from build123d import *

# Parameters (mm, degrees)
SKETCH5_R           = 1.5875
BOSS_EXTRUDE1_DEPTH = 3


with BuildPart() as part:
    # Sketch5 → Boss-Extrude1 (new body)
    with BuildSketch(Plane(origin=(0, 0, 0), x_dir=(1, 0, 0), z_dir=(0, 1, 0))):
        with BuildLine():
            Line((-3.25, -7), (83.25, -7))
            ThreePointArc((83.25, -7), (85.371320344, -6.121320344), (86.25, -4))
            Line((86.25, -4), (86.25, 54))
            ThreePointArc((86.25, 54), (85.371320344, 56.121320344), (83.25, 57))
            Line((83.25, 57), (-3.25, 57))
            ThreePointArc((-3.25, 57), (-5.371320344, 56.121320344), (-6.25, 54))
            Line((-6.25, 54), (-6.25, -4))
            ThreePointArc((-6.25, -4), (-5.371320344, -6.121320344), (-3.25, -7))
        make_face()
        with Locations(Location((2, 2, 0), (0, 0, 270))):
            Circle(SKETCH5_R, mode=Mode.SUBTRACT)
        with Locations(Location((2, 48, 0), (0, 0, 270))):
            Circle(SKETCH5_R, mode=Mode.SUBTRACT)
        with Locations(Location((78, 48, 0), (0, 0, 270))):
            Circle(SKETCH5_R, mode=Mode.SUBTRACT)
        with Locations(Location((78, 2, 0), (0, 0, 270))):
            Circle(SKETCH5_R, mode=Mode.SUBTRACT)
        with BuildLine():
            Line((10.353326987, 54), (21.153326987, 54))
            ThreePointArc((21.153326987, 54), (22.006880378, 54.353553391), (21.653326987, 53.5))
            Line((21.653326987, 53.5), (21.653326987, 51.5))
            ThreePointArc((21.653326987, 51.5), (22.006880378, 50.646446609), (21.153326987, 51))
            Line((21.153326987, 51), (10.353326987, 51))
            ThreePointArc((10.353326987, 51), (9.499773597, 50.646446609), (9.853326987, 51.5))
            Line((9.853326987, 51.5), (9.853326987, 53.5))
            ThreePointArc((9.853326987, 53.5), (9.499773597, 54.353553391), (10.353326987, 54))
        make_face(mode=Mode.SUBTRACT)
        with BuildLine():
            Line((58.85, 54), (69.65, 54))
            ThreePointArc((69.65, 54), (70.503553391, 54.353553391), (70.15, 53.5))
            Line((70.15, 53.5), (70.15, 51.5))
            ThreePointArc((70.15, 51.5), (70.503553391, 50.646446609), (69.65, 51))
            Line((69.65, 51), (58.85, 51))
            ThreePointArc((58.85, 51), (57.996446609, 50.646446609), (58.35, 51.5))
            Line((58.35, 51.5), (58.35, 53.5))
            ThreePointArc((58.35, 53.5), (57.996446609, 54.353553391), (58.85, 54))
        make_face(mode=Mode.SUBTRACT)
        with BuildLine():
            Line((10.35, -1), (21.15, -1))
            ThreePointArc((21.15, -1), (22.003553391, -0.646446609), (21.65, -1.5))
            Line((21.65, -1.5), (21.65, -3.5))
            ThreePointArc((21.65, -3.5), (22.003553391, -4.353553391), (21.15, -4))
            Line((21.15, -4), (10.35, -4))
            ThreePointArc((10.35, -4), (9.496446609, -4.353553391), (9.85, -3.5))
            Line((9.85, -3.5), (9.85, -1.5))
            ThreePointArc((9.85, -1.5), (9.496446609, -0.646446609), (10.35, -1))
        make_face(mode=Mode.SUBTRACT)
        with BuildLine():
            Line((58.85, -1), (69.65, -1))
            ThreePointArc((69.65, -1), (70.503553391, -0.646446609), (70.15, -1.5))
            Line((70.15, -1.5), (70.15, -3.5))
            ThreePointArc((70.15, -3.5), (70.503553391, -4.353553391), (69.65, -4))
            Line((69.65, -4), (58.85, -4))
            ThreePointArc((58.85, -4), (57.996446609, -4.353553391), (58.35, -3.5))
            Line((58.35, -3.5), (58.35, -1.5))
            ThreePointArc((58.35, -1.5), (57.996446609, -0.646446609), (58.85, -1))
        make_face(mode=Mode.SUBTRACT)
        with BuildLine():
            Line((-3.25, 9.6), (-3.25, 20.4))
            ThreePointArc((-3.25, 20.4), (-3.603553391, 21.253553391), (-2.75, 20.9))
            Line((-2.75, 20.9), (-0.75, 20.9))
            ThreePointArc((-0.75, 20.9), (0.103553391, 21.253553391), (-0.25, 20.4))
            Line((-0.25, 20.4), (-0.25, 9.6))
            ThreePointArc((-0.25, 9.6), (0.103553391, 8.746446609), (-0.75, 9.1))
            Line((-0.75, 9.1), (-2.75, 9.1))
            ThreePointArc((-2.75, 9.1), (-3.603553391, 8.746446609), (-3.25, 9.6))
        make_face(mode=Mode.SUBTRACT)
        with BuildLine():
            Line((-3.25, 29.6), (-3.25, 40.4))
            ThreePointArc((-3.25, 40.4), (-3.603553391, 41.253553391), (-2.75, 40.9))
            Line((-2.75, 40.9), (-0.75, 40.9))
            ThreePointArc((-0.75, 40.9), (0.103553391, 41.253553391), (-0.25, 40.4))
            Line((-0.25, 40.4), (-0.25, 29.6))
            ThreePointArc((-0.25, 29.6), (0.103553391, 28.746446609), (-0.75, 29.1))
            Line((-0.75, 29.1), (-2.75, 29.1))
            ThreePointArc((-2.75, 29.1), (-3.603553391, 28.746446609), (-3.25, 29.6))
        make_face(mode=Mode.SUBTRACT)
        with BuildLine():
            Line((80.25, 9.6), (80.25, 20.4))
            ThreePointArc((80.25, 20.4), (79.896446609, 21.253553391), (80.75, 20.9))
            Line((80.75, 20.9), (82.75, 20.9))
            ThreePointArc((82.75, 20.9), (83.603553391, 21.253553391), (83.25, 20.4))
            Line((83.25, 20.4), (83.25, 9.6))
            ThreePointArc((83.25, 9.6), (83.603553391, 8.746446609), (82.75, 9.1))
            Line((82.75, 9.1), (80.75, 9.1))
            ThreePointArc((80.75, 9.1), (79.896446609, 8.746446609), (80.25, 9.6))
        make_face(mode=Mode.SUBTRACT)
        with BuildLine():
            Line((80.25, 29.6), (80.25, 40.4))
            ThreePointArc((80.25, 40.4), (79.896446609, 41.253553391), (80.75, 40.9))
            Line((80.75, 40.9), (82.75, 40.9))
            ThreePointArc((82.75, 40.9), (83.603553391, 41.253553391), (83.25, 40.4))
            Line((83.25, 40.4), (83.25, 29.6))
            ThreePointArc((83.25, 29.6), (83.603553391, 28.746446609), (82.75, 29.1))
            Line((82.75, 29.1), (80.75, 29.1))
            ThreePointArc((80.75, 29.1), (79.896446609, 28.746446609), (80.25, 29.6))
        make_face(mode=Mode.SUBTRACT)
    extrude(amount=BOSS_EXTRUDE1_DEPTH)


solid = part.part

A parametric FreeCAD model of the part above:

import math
import FreeCAD as App
import Part
import Sketcher
from FreeCAD import Vector

doc = App.newDocument("Part")
body = doc.addObject("PartDesign::Body", "Body")

# Sketch on XZ plane
sketch1 = doc.addObject("Sketcher::SketchObject", "Sketch")
body.addObject(sketch1)
sketch1.AttachmentSupport = (doc.XZ_Plane, [""])
sketch1.MapMode = "FlatFace"
sketch1.addGeometry(Part.LineSegment(Vector(-3.2, 7, 0), Vector(83.2, 7, 0)), False)
sketch1.addGeometry(Part.ArcOfCircle(Part.Circle(Vector(83.3, 4, 0), Vector(0, 0, 1), 3), math.radians(0), math.radians(90)), False)
sketch1.addGeometry(Part.LineSegment(Vector(86.2, 4, 0), Vector(86.2, -54, 0)), False)
sketch1.addGeometry(Part.ArcOfCircle(Part.Circle(Vector(83.3, -54, 0), Vector(0, 0, 1), 3), math.radians(-90), math.radians(0)), False)
sketch1.addGeometry(Part.LineSegment(Vector(83.2, -57, 0), Vector(-3.2, -57, 0)), False)
sketch1.addGeometry(Part.ArcOfCircle(Part.Circle(Vector(-3.3, -54, 0), Vector(0, 0, 1), 3), math.radians(180), math.radians(270)), False)
sketch1.addGeometry(Part.LineSegment(Vector(-6.2, -54, 0), Vector(-6.2, 4, 0)), False)
sketch1.addGeometry(Part.ArcOfCircle(Part.Circle(Vector(-3.3, 4, 0), Vector(0, 0, 1), 3), math.radians(90), math.radians(180)), False)
sketch1.addGeometry(Part.Circle(Vector(2, -2, 0), Vector(0, 0, 1), 1.6), False)
sketch1.addGeometry(Part.ArcOfCircle(Part.Circle(Vector(9.8, 1, 0), Vector(0, 0, 1), 0.5), math.radians(90), math.radians(360)), False)
sketch1.addGeometry(Part.LineSegment(Vector(10.3, 1, 0), Vector(21.1, 1, 0)), False)
sketch1.addGeometry(Part.ArcOfCircle(Part.Circle(Vector(21.6, 1, 0), Vector(0, 0, 1), 0.5), math.radians(180), math.radians(450)), False)
sketch1.addGeometry(Part.LineSegment(Vector(21.6, 1.5, 0), Vector(21.6, 3.5, 0)), False)
sketch1.addGeometry(Part.ArcOfCircle(Part.Circle(Vector(21.6, 4, 0), Vector(0, 0, 1), 0.5), math.radians(-90), math.radians(180)), False)
sketch1.addGeometry(Part.LineSegment(Vector(21.1, 4, 0), Vector(10.3, 4, 0)), False)
sketch1.addGeometry(Part.ArcOfCircle(Part.Circle(Vector(9.8, 4, 0), Vector(0, 0, 1), 0.5), math.radians(0), math.radians(270)), False)
sketch1.addGeometry(Part.LineSegment(Vector(9.8, 3.5, 0), Vector(9.8, 1.5, 0)), False)
sketch1.addGeometry(Part.ArcOfCircle(Part.Circle(Vector(-3.2, -9.1, 0), Vector(0, 0, 1), 0.5), math.radians(0), math.radians(270)), False)
sketch1.addGeometry(Part.LineSegment(Vector(-3.2, -9.6, 0), Vector(-3.2, -20.4, 0)), False)
sketch1.addGeometry(Part.ArcOfCircle(Part.Circle(Vector(-3.2, -20.9, 0), Vector(0, 0, 1), 0.5), math.radians(90), math.radians(360)), False)
sketch1.addGeometry(Part.LineSegment(Vector(-2.8, -20.9, 0), Vector(-0.8, -20.9, 0)), False)
sketch1.addGeometry(Part.ArcOfCircle(Part.Circle(Vector(-0.2, -20.9, 0), Vector(0, 0, 1), 0.5), math.radians(180), math.radians(450)), False)
sketch1.addGeometry(Part.LineSegment(Vector(-0.2, -20.4, 0), Vector(-0.2, -9.6, 0)), False)
sketch1.addGeometry(Part.ArcOfCircle(Part.Circle(Vector(-0.2, -9.1, 0), Vector(0, 0, 1), 0.5), math.radians(-90), math.radians(180)), False)
sketch1.addGeometry(Part.LineSegment(Vector(-0.8, -9.1, 0), Vector(-2.8, -9.1, 0)), False)
sketch1.addGeometry(Part.ArcOfCircle(Part.Circle(Vector(58.4, 1, 0), Vector(0, 0, 1), 0.5), math.radians(90), math.radians(360)), False)
sketch1.addGeometry(Part.LineSegment(Vector(58.9, 1, 0), Vector(69.7, 1, 0)), False)
sketch1.addGeometry(Part.ArcOfCircle(Part.Circle(Vector(70.2, 1, 0), Vector(0, 0, 1), 0.5), math.radians(180), math.radians(450)), False)
sketch1.addGeometry(Part.LineSegment(Vector(70.2, 1.5, 0), Vector(70.2, 3.5, 0)), False)
sketch1.addGeometry(Part.ArcOfCircle(Part.Circle(Vector(70.2, 4, 0), Vector(0, 0, 1), 0.5), math.radians(-90), math.radians(180)), False)
sketch1.addGeometry(Part.LineSegment(Vector(69.7, 4, 0), Vector(58.9, 4, 0)), False)
sketch1.addGeometry(Part.ArcOfCircle(Part.Circle(Vector(58.4, 4, 0), Vector(0, 0, 1), 0.5), math.radians(0), math.radians(270)), False)
sketch1.addGeometry(Part.LineSegment(Vector(58.4, 3.5, 0), Vector(58.4, 1.5, 0)), False)
sketch1.addGeometry(Part.Circle(Vector(78, -2, 0), Vector(0, 0, 1), 1.6), False)
sketch1.addGeometry(Part.ArcOfCircle(Part.Circle(Vector(80.2, -9.1, 0), Vector(0, 0, 1), 0.5), math.radians(0), math.radians(270)), False)
sketch1.addGeometry(Part.LineSegment(Vector(80.2, -9.6, 0), Vector(80.2, -20.4, 0)), False)
sketch1.addGeometry(Part.ArcOfCircle(Part.Circle(Vector(80.2, -20.9, 0), Vector(0, 0, 1), 0.5), math.radians(90), math.radians(360)), False)
sketch1.addGeometry(Part.LineSegment(Vector(80.8, -20.9, 0), Vector(82.8, -20.9, 0)), False)
sketch1.addGeometry(Part.ArcOfCircle(Part.Circle(Vector(83.2, -20.9, 0), Vector(0, 0, 1), 0.5), math.radians(180), math.radians(450)), False)
sketch1.addGeometry(Part.LineSegment(Vector(83.2, -20.4, 0), Vector(83.2, -9.6, 0)), False)
sketch1.addGeometry(Part.ArcOfCircle(Part.Circle(Vector(83.2, -9.1, 0), Vector(0, 0, 1), 0.5), math.radians(-90), math.radians(180)), False)
sketch1.addGeometry(Part.LineSegment(Vector(82.8, -9.1, 0), Vector(80.8, -9.1, 0)), False)
sketch1.addGeometry(Part.ArcOfCircle(Part.Circle(Vector(-3.2, -29.1, 0), Vector(0, 0, 1), 0.5), math.radians(0), math.radians(270)), False)
sketch1.addGeometry(Part.LineSegment(Vector(-3.2, -29.6, 0), Vector(-3.2, -40.4, 0)), False)
sketch1.addGeometry(Part.ArcOfCircle(Part.Circle(Vector(-3.2, -40.9, 0), Vector(0, 0, 1), 0.5), math.radians(90), math.radians(360)), False)
sketch1.addGeometry(Part.LineSegment(Vector(-2.8, -40.9, 0), Vector(-0.8, -40.9, 0)), False)
sketch1.addGeometry(Part.ArcOfCircle(Part.Circle(Vector(-0.2, -40.9, 0), Vector(0, 0, 1), 0.5), math.radians(180), math.radians(450)), False)
sketch1.addGeometry(Part.LineSegment(Vector(-0.2, -40.4, 0), Vector(-0.2, -29.6, 0)), False)
sketch1.addGeometry(Part.ArcOfCircle(Part.Circle(Vector(-0.2, -29.1, 0), Vector(0, 0, 1), 0.5), math.radians(-90), math.radians(180)), False)
sketch1.addGeometry(Part.LineSegment(Vector(-0.8, -29.1, 0), Vector(-2.8, -29.1, 0)), False)
sketch1.addGeometry(Part.Circle(Vector(2, -48, 0), Vector(0, 0, 1), 1.6), False)
sketch1.addGeometry(Part.ArcOfCircle(Part.Circle(Vector(9.9, -54, 0), Vector(0, 0, 1), 0.5), math.radians(90), math.radians(360)), False)
sketch1.addGeometry(Part.LineSegment(Vector(10.4, -54, 0), Vector(21.2, -54, 0)), False)
sketch1.addGeometry(Part.ArcOfCircle(Part.Circle(Vector(21.7, -54, 0), Vector(0, 0, 1), 0.5), math.radians(180), math.radians(450)), False)
sketch1.addGeometry(Part.LineSegment(Vector(21.7, -53.5, 0), Vector(21.7, -51.5, 0)), False)
sketch1.addGeometry(Part.ArcOfCircle(Part.Circle(Vector(21.7, -51, 0), Vector(0, 0, 1), 0.5), math.radians(-90), math.radians(180)), False)
sketch1.addGeometry(Part.LineSegment(Vector(21.2, -51, 0), Vector(10.4, -51, 0)), False)
sketch1.addGeometry(Part.ArcOfCircle(Part.Circle(Vector(9.9, -51, 0), Vector(0, 0, 1), 0.5), math.radians(0), math.radians(270)), False)
sketch1.addGeometry(Part.LineSegment(Vector(9.9, -51.5, 0), Vector(9.9, -53.5, 0)), False)
sketch1.addGeometry(Part.ArcOfCircle(Part.Circle(Vector(80.2, -29.1, 0), Vector(0, 0, 1), 0.5), math.radians(0), math.radians(270)), False)
sketch1.addGeometry(Part.LineSegment(Vector(80.2, -29.6, 0), Vector(80.2, -40.4, 0)), False)
sketch1.addGeometry(Part.ArcOfCircle(Part.Circle(Vector(80.2, -40.9, 0), Vector(0, 0, 1), 0.5), math.radians(90), math.radians(360)), False)
sketch1.addGeometry(Part.LineSegment(Vector(80.8, -40.9, 0), Vector(82.8, -40.9, 0)), False)
sketch1.addGeometry(Part.ArcOfCircle(Part.Circle(Vector(83.2, -40.9, 0), Vector(0, 0, 1), 0.5), math.radians(180), math.radians(450)), False)
sketch1.addGeometry(Part.LineSegment(Vector(83.2, -40.4, 0), Vector(83.2, -29.6, 0)), False)
sketch1.addGeometry(Part.ArcOfCircle(Part.Circle(Vector(83.2, -29.1, 0), Vector(0, 0, 1), 0.5), math.radians(-90), math.radians(180)), False)
sketch1.addGeometry(Part.LineSegment(Vector(82.8, -29.1, 0), Vector(80.8, -29.1, 0)), False)
sketch1.addGeometry(Part.ArcOfCircle(Part.Circle(Vector(58.4, -54, 0), Vector(0, 0, 1), 0.5), math.radians(90), math.radians(360)), False)
sketch1.addGeometry(Part.LineSegment(Vector(58.9, -54, 0), Vector(69.7, -54, 0)), False)
sketch1.addGeometry(Part.ArcOfCircle(Part.Circle(Vector(70.2, -54, 0), Vector(0, 0, 1), 0.5), math.radians(180), math.radians(450)), False)
sketch1.addGeometry(Part.LineSegment(Vector(70.2, -53.5, 0), Vector(70.2, -51.5, 0)), False)
sketch1.addGeometry(Part.ArcOfCircle(Part.Circle(Vector(70.2, -51, 0), Vector(0, 0, 1), 0.5), math.radians(-90), math.radians(180)), False)
sketch1.addGeometry(Part.LineSegment(Vector(69.7, -51, 0), Vector(58.9, -51, 0)), False)
sketch1.addGeometry(Part.ArcOfCircle(Part.Circle(Vector(58.4, -51, 0), Vector(0, 0, 1), 0.5), math.radians(0), math.radians(270)), False)
sketch1.addGeometry(Part.LineSegment(Vector(58.4, -51.5, 0), Vector(58.4, -53.5, 0)), False)
sketch1.addGeometry(Part.Circle(Vector(78, -48, 0), Vector(0, 0, 1), 1.6), False)
sketch1.addConstraint(Sketcher.Constraint("Tangent", 0, 2, 1, 2))
sketch1.addConstraint(Sketcher.Constraint("Tangent", 1, 1, 2, 1))
sketch1.addConstraint(Sketcher.Constraint("Tangent", 2, 2, 3, 2))
sketch1.addConstraint(Sketcher.Constraint("Tangent", 3, 1, 4, 1))
sketch1.addConstraint(Sketcher.Constraint("Tangent", 4, 2, 5, 2))
sketch1.addConstraint(Sketcher.Constraint("Tangent", 5, 1, 6, 1))
sketch1.addConstraint(Sketcher.Constraint("Tangent", 6, 2, 7, 2))
sketch1.addConstraint(Sketcher.Constraint("Tangent", 7, 1, 0, 1))
sketch1.addConstraint(Sketcher.Constraint("Coincident", 9, 2, 10, 1))
sketch1.addConstraint(Sketcher.Constraint("Coincident", 10, 2, 11, 1))
sketch1.addConstraint(Sketcher.Constraint("Coincident", 11, 2, 12, 1))
sketch1.addConstraint(Sketcher.Constraint("Coincident", 12, 2, 13, 1))
sketch1.addConstraint(Sketcher.Constraint("Coincident", 13, 2, 14, 1))
sketch1.addConstraint(Sketcher.Constraint("Coincident", 14, 2, 15, 1))
sketch1.addConstraint(Sketcher.Constraint("Coincident", 15, 2, 16, 1))
sketch1.addConstraint(Sketcher.Constraint("Coincident", 16, 2, 9, 1))
sketch1.addConstraint(Sketcher.Constraint("Coincident", 17, 2, 18, 1))
sketch1.addConstraint(Sketcher.Constraint("Coincident", 18, 2, 19, 1))
sketch1.addConstraint(Sketcher.Constraint("Coincident", 19, 2, 20, 1))
sketch1.addConstraint(Sketcher.Constraint("Coincident", 20, 2, 21, 1))
sketch1.addConstraint(Sketcher.Constraint("Coincident", 21, 2, 22, 1))
sketch1.addConstraint(Sketcher.Constraint("Coincident", 22, 2, 23, 1))
sketch1.addConstraint(Sketcher.Constraint("Coincident", 23, 2, 24, 1))
sketch1.addConstraint(Sketcher.Constraint("Coincident", 24, 2, 17, 1))
sketch1.addConstraint(Sketcher.Constraint("Coincident", 25, 2, 26, 1))
sketch1.addConstraint(Sketcher.Constraint("Coincident", 26, 2, 27, 1))
sketch1.addConstraint(Sketcher.Constraint("Coincident", 27, 2, 28, 1))
sketch1.addConstraint(Sketcher.Constraint("Coincident", 28, 2, 29, 1))
sketch1.addConstraint(Sketcher.Constraint("Coincident", 29, 2, 30, 1))
sketch1.addConstraint(Sketcher.Constraint("Coincident", 30, 2, 31, 1))
sketch1.addConstraint(Sketcher.Constraint("Coincident", 31, 2, 32, 1))
sketch1.addConstraint(Sketcher.Constraint("Coincident", 32, 2, 25, 1))
sketch1.addConstraint(Sketcher.Constraint("Coincident", 34, 2, 35, 1))
sketch1.addConstraint(Sketcher.Constraint("Coincident", 35, 2, 36, 1))
sketch1.addConstraint(Sketcher.Constraint("Coincident", 36, 2, 37, 1))
sketch1.addConstraint(Sketcher.Constraint("Coincident", 37, 2, 38, 1))
sketch1.addConstraint(Sketcher.Constraint("Coincident", 38, 2, 39, 1))
sketch1.addConstraint(Sketcher.Constraint("Coincident", 39, 2, 40, 1))
sketch1.addConstraint(Sketcher.Constraint("Coincident", 40, 2, 41, 1))
sketch1.addConstraint(Sketcher.Constraint("Coincident", 41, 2, 34, 1))
sketch1.addConstraint(Sketcher.Constraint("Coincident", 42, 2, 43, 1))
sketch1.addConstraint(Sketcher.Constraint("Coincident", 43, 2, 44, 1))
sketch1.addConstraint(Sketcher.Constraint("Coincident", 44, 2, 45, 1))
sketch1.addConstraint(Sketcher.Constraint("Coincident", 45, 2, 46, 1))
sketch1.addConstraint(Sketcher.Constraint("Coincident", 46, 2, 47, 1))
sketch1.addConstraint(Sketcher.Constraint("Coincident", 47, 2, 48, 1))
sketch1.addConstraint(Sketcher.Constraint("Coincident", 48, 2, 49, 1))
sketch1.addConstraint(Sketcher.Constraint("Coincident", 49, 2, 42, 1))
sketch1.addConstraint(Sketcher.Constraint("Coincident", 51, 2, 52, 1))
sketch1.addConstraint(Sketcher.Constraint("Coincident", 52, 2, 53, 1))
sketch1.addConstraint(Sketcher.Constraint("Coincident", 53, 2, 54, 1))
sketch1.addConstraint(Sketcher.Constraint("Coincident", 54, 2, 55, 1))
sketch1.addConstraint(Sketcher.Constraint("Coincident", 55, 2, 56, 1))
sketch1.addConstraint(Sketcher.Constraint("Coincident", 56, 2, 57, 1))
sketch1.addConstraint(Sketcher.Constraint("Coincident", 57, 2, 58, 1))
sketch1.addConstraint(Sketcher.Constraint("Coincident", 58, 2, 51, 1))
sketch1.addConstraint(Sketcher.Constraint("Coincident", 59, 2, 60, 1))
sketch1.addConstraint(Sketcher.Constraint("Coincident", 60, 2, 61, 1))
sketch1.addConstraint(Sketcher.Constraint("Coincident", 61, 2, 62, 1))
sketch1.addConstraint(Sketcher.Constraint("Coincident", 62, 2, 63, 1))
sketch1.addConstraint(Sketcher.Constraint("Coincident", 63, 2, 64, 1))
sketch1.addConstraint(Sketcher.Constraint("Coincident", 64, 2, 65, 1))
sketch1.addConstraint(Sketcher.Constraint("Coincident", 65, 2, 66, 1))
sketch1.addConstraint(Sketcher.Constraint("Coincident", 66, 2, 59, 1))
sketch1.addConstraint(Sketcher.Constraint("Coincident", 67, 2, 68, 1))
sketch1.addConstraint(Sketcher.Constraint("Coincident", 68, 2, 69, 1))
sketch1.addConstraint(Sketcher.Constraint("Coincident", 69, 2, 70, 1))
sketch1.addConstraint(Sketcher.Constraint("Coincident", 70, 2, 71, 1))
sketch1.addConstraint(Sketcher.Constraint("Coincident", 71, 2, 72, 1))
sketch1.addConstraint(Sketcher.Constraint("Coincident", 72, 2, 73, 1))
sketch1.addConstraint(Sketcher.Constraint("Coincident", 73, 2, 74, 1))
sketch1.addConstraint(Sketcher.Constraint("Coincident", 74, 2, 67, 1))
sketch1.addConstraint(Sketcher.Constraint("Horizontal", 0))
sketch1.addConstraint(Sketcher.Constraint("Vertical", 2))
sketch1.addConstraint(Sketcher.Constraint("Horizontal", 4))
sketch1.addConstraint(Sketcher.Constraint("Vertical", 6))
sketch1.addConstraint(Sketcher.Constraint("Horizontal", 10))
sketch1.addConstraint(Sketcher.Constraint("Vertical", 12))
sketch1.addConstraint(Sketcher.Constraint("Horizontal", 14))
sketch1.addConstraint(Sketcher.Constraint("Vertical", 16))
sketch1.addConstraint(Sketcher.Constraint("Vertical", 18))
sketch1.addConstraint(Sketcher.Constraint("Horizontal", 20))
sketch1.addConstraint(Sketcher.Constraint("Vertical", 22))
sketch1.addConstraint(Sketcher.Constraint("Horizontal", 24))
sketch1.addConstraint(Sketcher.Constraint("Horizontal", 26))
sketch1.addConstraint(Sketcher.Constraint("Vertical", 28))
sketch1.addConstraint(Sketcher.Constraint("Horizontal", 30))
sketch1.addConstraint(Sketcher.Constraint("Vertical", 32))
sketch1.addConstraint(Sketcher.Constraint("Vertical", 35))
sketch1.addConstraint(Sketcher.Constraint("Horizontal", 37))
sketch1.addConstraint(Sketcher.Constraint("Vertical", 39))
sketch1.addConstraint(Sketcher.Constraint("Horizontal", 41))
sketch1.addConstraint(Sketcher.Constraint("Vertical", 43))
sketch1.addConstraint(Sketcher.Constraint("Horizontal", 45))
sketch1.addConstraint(Sketcher.Constraint("Vertical", 47))
sketch1.addConstraint(Sketcher.Constraint("Horizontal", 49))
sketch1.addConstraint(Sketcher.Constraint("Horizontal", 52))
sketch1.addConstraint(Sketcher.Constraint("Vertical", 54))
sketch1.addConstraint(Sketcher.Constraint("Horizontal", 56))
sketch1.addConstraint(Sketcher.Constraint("Vertical", 58))
sketch1.addConstraint(Sketcher.Constraint("Vertical", 60))
sketch1.addConstraint(Sketcher.Constraint("Horizontal", 62))
sketch1.addConstraint(Sketcher.Constraint("Vertical", 64))
sketch1.addConstraint(Sketcher.Constraint("Horizontal", 66))
sketch1.addConstraint(Sketcher.Constraint("Horizontal", 68))
sketch1.addConstraint(Sketcher.Constraint("Vertical", 70))
sketch1.addConstraint(Sketcher.Constraint("Horizontal", 72))
sketch1.addConstraint(Sketcher.Constraint("Vertical", 74))
sketch1.addConstraint(Sketcher.Constraint("Equal", 1, 3))
sketch1.addConstraint(Sketcher.Constraint("Equal", 3, 5))
sketch1.addConstraint(Sketcher.Constraint("Equal", 5, 7))
sketch1.addConstraint(Sketcher.Constraint("Equal", 9, 11))
sketch1.addConstraint(Sketcher.Constraint("Equal", 11, 13))
sketch1.addConstraint(Sketcher.Constraint("Equal", 13, 15))
sketch1.addConstraint(Sketcher.Constraint("Equal", 15, 17))
sketch1.addConstraint(Sketcher.Constraint("Equal", 17, 19))
sketch1.addConstraint(Sketcher.Constraint("Equal", 19, 21))
sketch1.addConstraint(Sketcher.Constraint("Equal", 21, 23))
sketch1.addConstraint(Sketcher.Constraint("Equal", 23, 25))
sketch1.addConstraint(Sketcher.Constraint("Equal", 25, 27))
sketch1.addConstraint(Sketcher.Constraint("Equal", 27, 29))
sketch1.addConstraint(Sketcher.Constraint("Equal", 29, 31))
sketch1.addConstraint(Sketcher.Constraint("Equal", 8, 33))
sketch1.addConstraint(Sketcher.Constraint("Equal", 31, 34))
sketch1.addConstraint(Sketcher.Constraint("Equal", 34, 36))
sketch1.addConstraint(Sketcher.Constraint("Equal", 36, 38))
sketch1.addConstraint(Sketcher.Constraint("Equal", 38, 40))
sketch1.addConstraint(Sketcher.Constraint("Equal", 40, 42))
sketch1.addConstraint(Sketcher.Constraint("Equal", 42, 44))
sketch1.addConstraint(Sketcher.Constraint("Equal", 44, 46))
sketch1.addConstraint(Sketcher.Constraint("Equal", 46, 48))
sketch1.addConstraint(Sketcher.Constraint("Equal", 33, 50))
sketch1.addConstraint(Sketcher.Constraint("Equal", 48, 51))
sketch1.addConstraint(Sketcher.Constraint("Equal", 51, 53))
sketch1.addConstraint(Sketcher.Constraint("Equal", 53, 55))
sketch1.addConstraint(Sketcher.Constraint("Equal", 55, 57))
sketch1.addConstraint(Sketcher.Constraint("Equal", 57, 59))
sketch1.addConstraint(Sketcher.Constraint("Equal", 59, 61))
sketch1.addConstraint(Sketcher.Constraint("Equal", 61, 63))
sketch1.addConstraint(Sketcher.Constraint("Equal", 63, 65))
sketch1.addConstraint(Sketcher.Constraint("Equal", 65, 67))
sketch1.addConstraint(Sketcher.Constraint("Equal", 67, 69))
sketch1.addConstraint(Sketcher.Constraint("Equal", 69, 71))
sketch1.addConstraint(Sketcher.Constraint("Equal", 71, 73))
sketch1.addConstraint(Sketcher.Constraint("Equal", 50, 75))
sketch1.addConstraint(Sketcher.Constraint("Horizontal", 9, 3, 11, 3))
sketch1.addConstraint(Sketcher.Constraint("Horizontal", 7, 3, 13, 3))
sketch1.addConstraint(Sketcher.Constraint("Horizontal", 13, 3, 15, 3))
sketch1.addConstraint(Sketcher.Constraint("Horizontal", 19, 3, 21, 3))
sketch1.addConstraint(Sketcher.Constraint("Horizontal", 17, 3, 23, 3))
sketch1.addConstraint(Sketcher.Constraint("Horizontal", 11, 3, 25, 3))
sketch1.addConstraint(Sketcher.Constraint("Horizontal", 25, 3, 27, 3))
sketch1.addConstraint(Sketcher.Constraint("Horizontal", 15, 3, 29, 3))
sketch1.addConstraint(Sketcher.Constraint("Horizontal", 29, 3, 31, 3))
sketch1.addConstraint(Sketcher.Constraint("Horizontal", 8, 3, 33, 3))
sketch1.addConstraint(Sketcher.Constraint("Horizontal", 23, 3, 34, 3))
sketch1.addConstraint(Sketcher.Constraint("Horizontal", 21, 3, 36, 3))
sketch1.addConstraint(Sketcher.Constraint("Horizontal", 36, 3, 38, 3))
sketch1.addConstraint(Sketcher.Constraint("Horizontal", 34, 3, 40, 3))
sketch1.addConstraint(Sketcher.Constraint("Horizontal", 44, 3, 46, 3))
sketch1.addConstraint(Sketcher.Constraint("Horizontal", 42, 3, 48, 3))
sketch1.addConstraint(Sketcher.Constraint("Horizontal", 5, 3, 51, 3))
sketch1.addConstraint(Sketcher.Constraint("Horizontal", 51, 3, 53, 3))
sketch1.addConstraint(Sketcher.Constraint("Horizontal", 55, 3, 57, 3))
sketch1.addConstraint(Sketcher.Constraint("Horizontal", 48, 3, 59, 3))
sketch1.addConstraint(Sketcher.Constraint("Horizontal", 46, 3, 61, 3))
sketch1.addConstraint(Sketcher.Constraint("Horizontal", 61, 3, 63, 3))
sketch1.addConstraint(Sketcher.Constraint("Horizontal", 59, 3, 65, 3))
sketch1.addConstraint(Sketcher.Constraint("Horizontal", 53, 3, 67, 3))
sketch1.addConstraint(Sketcher.Constraint("Horizontal", 67, 3, 69, 3))
sketch1.addConstraint(Sketcher.Constraint("Horizontal", 57, 3, 71, 3))
sketch1.addConstraint(Sketcher.Constraint("Horizontal", 71, 3, 73, 3))
sketch1.addConstraint(Sketcher.Constraint("Horizontal", 50, 3, 75, 3))
sketch1.addConstraint(Sketcher.Constraint("Horizontal", 27, 3, 9, 2))
sketch1.addConstraint(Sketcher.Constraint("Horizontal", 6, 2, 13, 2))
sketch1.addConstraint(Sketcher.Constraint("Horizontal", 38, 3, 19, 2))
sketch1.addConstraint(Sketcher.Constraint("Horizontal", 40, 3, 23, 2))
sketch1.addConstraint(Sketcher.Constraint("Horizontal", 10, 2, 25, 2))
sketch1.addConstraint(Sketcher.Constraint("Horizontal", 14, 2, 29, 2))
sketch1.addConstraint(Sketcher.Constraint("Horizontal", 20, 2, 36, 2))
sketch1.addConstraint(Sketcher.Constraint("Horizontal", 24, 2, 40, 2))
sketch1.addConstraint(Sketcher.Constraint("Horizontal", 63, 3, 44, 2))
sketch1.addConstraint(Sketcher.Constraint("Horizontal", 65, 3, 48, 2))
sketch1.addConstraint(Sketcher.Constraint("Horizontal", 5, 1, 51, 2))
sketch1.addConstraint(Sketcher.Constraint("Horizontal", 73, 3, 55, 2))
sketch1.addConstraint(Sketcher.Constraint("Horizontal", 45, 2, 61, 2))
sketch1.addConstraint(Sketcher.Constraint("Horizontal", 49, 2, 65, 2))
sketch1.addConstraint(Sketcher.Constraint("Horizontal", 52, 2, 67, 2))
sketch1.addConstraint(Sketcher.Constraint("Horizontal", 56, 2, 71, 2))
sketch1.addConstraint(Sketcher.Constraint("Vertical", 11, 3, 13, 3))
sketch1.addConstraint(Sketcher.Constraint("Vertical", 9, 3, 15, 3))
sketch1.addConstraint(Sketcher.Constraint("Vertical", 7, 3, 17, 3))
sketch1.addConstraint(Sketcher.Constraint("Vertical", 17, 3, 19, 3))
sketch1.addConstraint(Sketcher.Constraint("Vertical", 21, 3, 23, 3))
sketch1.addConstraint(Sketcher.Constraint("Vertical", 27, 3, 29, 3))
sketch1.addConstraint(Sketcher.Constraint("Vertical", 25, 3, 31, 3))
sketch1.addConstraint(Sketcher.Constraint("Vertical", 34, 3, 36, 3))
sketch1.addConstraint(Sketcher.Constraint("Vertical", 3, 3, 38, 3))
sketch1.addConstraint(Sketcher.Constraint("Vertical", 38, 3, 40, 3))
sketch1.addConstraint(Sketcher.Constraint("Vertical", 19, 3, 42, 3))
sketch1.addConstraint(Sketcher.Constraint("Vertical", 42, 3, 44, 3))
sketch1.addConstraint(Sketcher.Constraint("Vertical", 23, 3, 46, 3))
sketch1.addConstraint(Sketcher.Constraint("Vertical", 46, 3, 48, 3))
sketch1.addConstraint(Sketcher.Constraint("Vertical", 8, 3, 50, 3))
sketch1.addConstraint(Sketcher.Constraint("Vertical", 53, 3, 55, 3))
sketch1.addConstraint(Sketcher.Constraint("Vertical", 51, 3, 57, 3))
sketch1.addConstraint(Sketcher.Constraint("Vertical", 36, 3, 59, 3))
sketch1.addConstraint(Sketcher.Constraint("Vertical", 59, 3, 61, 3))
sketch1.addConstraint(Sketcher.Constraint("Vertical", 40, 3, 63, 3))
sketch1.addConstraint(Sketcher.Constraint("Vertical", 63, 3, 65, 3))
sketch1.addConstraint(Sketcher.Constraint("Vertical", 31, 3, 67, 3))
sketch1.addConstraint(Sketcher.Constraint("Vertical", 29, 3, 69, 3))
sketch1.addConstraint(Sketcher.Constraint("Vertical", 69, 3, 71, 3))
sketch1.addConstraint(Sketcher.Constraint("Vertical", 67, 3, 73, 3))
sketch1.addConstraint(Sketcher.Constraint("Vertical", 33, 3, 75, 3))
sketch1.addConstraint(Sketcher.Constraint("Vertical", 13, 3, 11, 2))
sketch1.addConstraint(Sketcher.Constraint("Vertical", 9, 3, 15, 2))
sketch1.addConstraint(Sketcher.Constraint("Vertical", 7, 1, 17, 2))
sketch1.addConstraint(Sketcher.Constraint("Vertical", 48, 3, 21, 2))
sketch1.addConstraint(Sketcher.Constraint("Vertical", 71, 3, 27, 2))
sketch1.addConstraint(Sketcher.Constraint("Vertical", 73, 3, 31, 2))
sketch1.addConstraint(Sketcher.Constraint("Vertical", 61, 3, 34, 2))
sketch1.addConstraint(Sketcher.Constraint("Vertical", 3, 1, 38, 2))
sketch1.addConstraint(Sketcher.Constraint("Vertical", 18, 2, 42, 2))
sketch1.addConstraint(Sketcher.Constraint("Vertical", 22, 2, 46, 2))
sketch1.addConstraint(Sketcher.Constraint("Vertical", 55, 3, 53, 2))
sketch1.addConstraint(Sketcher.Constraint("Vertical", 51, 3, 57, 2))
sketch1.addConstraint(Sketcher.Constraint("Vertical", 35, 2, 59, 2))
sketch1.addConstraint(Sketcher.Constraint("Vertical", 39, 2, 63, 2))
sketch1.addConstraint(Sketcher.Constraint("Vertical", 28, 2, 69, 2))
sketch1.addConstraint(Sketcher.Constraint("Vertical", 32, 2, 73, 2))
sketch1.addConstraint(Sketcher.Constraint("Equal", 14, 26))
sketch1.addConstraint(Sketcher.Constraint("Equal", 24, 37))
sketch1.addConstraint(Sketcher.Constraint("Equal", 30, 52))
sketch1.addConstraint(Sketcher.Constraint("Equal", 66, 12))
sketch1.addConstraint(Sketcher.Constraint("Equal", 72, 18))
sketch1.addConstraint(Sketcher.Constraint("Equal", 39, 43))
sketch1.addConstraint(Sketcher.Constraint("Equal", 32, 54))
sketch1.addConstraint(Sketcher.Constraint("Radius", 1, 3.0))
sketch1.addConstraint(Sketcher.Constraint("Radius", 9, 0.5))
sketch1.addConstraint(Sketcher.Constraint("DistanceX", 20, 1, 20, 2, 2.0))
sketch1.addConstraint(Sketcher.Constraint("DistanceY", 2, 2, 2, 1, 58.0))
sketch1.addConstraint(Sketcher.Constraint("Diameter", 8, 3.175))
sketch1.addConstraint(Sketcher.Constraint("DistanceX", 0, 1, 0, 2, 86.5))
sketch1.addConstraint(Sketcher.Constraint("DistanceX", 10, 1, 10, 2, 10.8))
sketch1.addConstraint(Sketcher.Constraint("DistanceY", -1, 1, 1, 3, 4.0))
sketch1.addConstraint(Sketcher.Constraint("DistanceX", -1, 1, 8, 3, 2.0))
sketch1.addConstraint(Sketcher.Constraint("DistanceY", 8, 3, -1, 1, 2.0))
sketch1.addConstraint(Sketcher.Constraint("DistanceX", -1, 1, 33, 3, 78.0))
sketch1.addConstraint(Sketcher.Constraint("DistanceY", 50, 3, -1, 1, 48.0))
sketch1.addConstraint(Sketcher.Constraint("DistanceY", 17, 3, -1, 1, 9.1))
sketch1.addConstraint(Sketcher.Constraint("DistanceY", 42, 3, -1, 1, 29.1))
sketch1.addConstraint(Sketcher.Constraint("DistanceX", -1, 1, 1, 3, 83.25))
sketch1.addConstraint(Sketcher.Constraint("DistanceX", -1, 1, 9, 3, 9.85))
sketch1.addConstraint(Sketcher.Constraint("DistanceX", -1, 1, 25, 3, 58.35))
sketch1.addConstraint(Sketcher.Constraint("DistanceX", -1, 1, 51, 3, 9.853327))
pad1 = doc.addObject("PartDesign::Pad", "Pad")
body.addObject(pad1)
pad1.Profile = sketch1
pad1.Length = 3
pad1.Reversed = True

doc.recompute()
